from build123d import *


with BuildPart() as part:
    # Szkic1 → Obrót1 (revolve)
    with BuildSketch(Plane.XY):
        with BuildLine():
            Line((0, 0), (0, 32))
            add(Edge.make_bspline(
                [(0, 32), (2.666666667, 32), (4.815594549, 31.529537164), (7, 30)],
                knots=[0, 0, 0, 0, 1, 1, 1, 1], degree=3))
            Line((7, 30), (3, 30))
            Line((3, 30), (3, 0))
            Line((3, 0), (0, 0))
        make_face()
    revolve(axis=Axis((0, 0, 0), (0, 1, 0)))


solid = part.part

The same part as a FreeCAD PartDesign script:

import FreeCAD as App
import Part
import Sketcher
from FreeCAD import Vector
Q = App.Units.Quantity

doc = App.newDocument("Part")
body = doc.addObject("PartDesign::Body", "Body")

sketch1 = body.newObject("Sketcher::SketchObject", "Sketch")
sketch1.AttachmentSupport = (doc.getObject("XY_Plane"), [""])
sketch1.MapMode = "FlatFace"
sketch1.addGeometry([
    Part.LineSegment(Vector(0, 32, 0), Vector(0, 0, 0)),
    Part.LineSegment(Vector(0, 0, 0), Vector(3, 0, 0)),
    Part.LineSegment(Vector(3, 0, 0), Vector(3, 30, 0)),
    Part.LineSegment(Vector(3, 30, 0), Vector(7, 30, 0)),
    Part.BSplineCurve([Vector(0, 32, 0), Vector(2.666667, 32, 0), Vector(4.815595, 31.529537, 0), Vector(7, 30, 0)], [4, 4], [0, 1], False, 3, [1, 1, 1, 1], False),
], False)
sketch1.addConstraint([
    Sketcher.Constraint("Block", 4),
    Sketcher.Constraint("Coincident", 0, 2, 1, 1),
    Sketcher.Constraint("Coincident", 1, 2, 2, 1),
    Sketcher.Constraint("Coincident", 2, 2, 3, 1),
    Sketcher.Constraint("Coincident", 3, 2, 4, 2),
    Sketcher.Constraint("Coincident", 4, 1, 0, 1),
    Sketcher.Constraint("Vertical", 0),
    Sketcher.Constraint("Horizontal", 1),
    Sketcher.Constraint("Vertical", 2),
    Sketcher.Constraint("Horizontal", 3),
    Sketcher.Constraint("PointOnObject", 1, 2, -1),
    Sketcher.Constraint("DistanceX", 1, 1, 1, 2, Q("3 mm")),
])
revolution = body.newObject("PartDesign::Revolution", "Revolution")
revolution.Profile = sketch1
revolution.ReferenceAxis = (sketch1, ["V_Axis"])
revolution.Angle = 360

doc.recompute()
